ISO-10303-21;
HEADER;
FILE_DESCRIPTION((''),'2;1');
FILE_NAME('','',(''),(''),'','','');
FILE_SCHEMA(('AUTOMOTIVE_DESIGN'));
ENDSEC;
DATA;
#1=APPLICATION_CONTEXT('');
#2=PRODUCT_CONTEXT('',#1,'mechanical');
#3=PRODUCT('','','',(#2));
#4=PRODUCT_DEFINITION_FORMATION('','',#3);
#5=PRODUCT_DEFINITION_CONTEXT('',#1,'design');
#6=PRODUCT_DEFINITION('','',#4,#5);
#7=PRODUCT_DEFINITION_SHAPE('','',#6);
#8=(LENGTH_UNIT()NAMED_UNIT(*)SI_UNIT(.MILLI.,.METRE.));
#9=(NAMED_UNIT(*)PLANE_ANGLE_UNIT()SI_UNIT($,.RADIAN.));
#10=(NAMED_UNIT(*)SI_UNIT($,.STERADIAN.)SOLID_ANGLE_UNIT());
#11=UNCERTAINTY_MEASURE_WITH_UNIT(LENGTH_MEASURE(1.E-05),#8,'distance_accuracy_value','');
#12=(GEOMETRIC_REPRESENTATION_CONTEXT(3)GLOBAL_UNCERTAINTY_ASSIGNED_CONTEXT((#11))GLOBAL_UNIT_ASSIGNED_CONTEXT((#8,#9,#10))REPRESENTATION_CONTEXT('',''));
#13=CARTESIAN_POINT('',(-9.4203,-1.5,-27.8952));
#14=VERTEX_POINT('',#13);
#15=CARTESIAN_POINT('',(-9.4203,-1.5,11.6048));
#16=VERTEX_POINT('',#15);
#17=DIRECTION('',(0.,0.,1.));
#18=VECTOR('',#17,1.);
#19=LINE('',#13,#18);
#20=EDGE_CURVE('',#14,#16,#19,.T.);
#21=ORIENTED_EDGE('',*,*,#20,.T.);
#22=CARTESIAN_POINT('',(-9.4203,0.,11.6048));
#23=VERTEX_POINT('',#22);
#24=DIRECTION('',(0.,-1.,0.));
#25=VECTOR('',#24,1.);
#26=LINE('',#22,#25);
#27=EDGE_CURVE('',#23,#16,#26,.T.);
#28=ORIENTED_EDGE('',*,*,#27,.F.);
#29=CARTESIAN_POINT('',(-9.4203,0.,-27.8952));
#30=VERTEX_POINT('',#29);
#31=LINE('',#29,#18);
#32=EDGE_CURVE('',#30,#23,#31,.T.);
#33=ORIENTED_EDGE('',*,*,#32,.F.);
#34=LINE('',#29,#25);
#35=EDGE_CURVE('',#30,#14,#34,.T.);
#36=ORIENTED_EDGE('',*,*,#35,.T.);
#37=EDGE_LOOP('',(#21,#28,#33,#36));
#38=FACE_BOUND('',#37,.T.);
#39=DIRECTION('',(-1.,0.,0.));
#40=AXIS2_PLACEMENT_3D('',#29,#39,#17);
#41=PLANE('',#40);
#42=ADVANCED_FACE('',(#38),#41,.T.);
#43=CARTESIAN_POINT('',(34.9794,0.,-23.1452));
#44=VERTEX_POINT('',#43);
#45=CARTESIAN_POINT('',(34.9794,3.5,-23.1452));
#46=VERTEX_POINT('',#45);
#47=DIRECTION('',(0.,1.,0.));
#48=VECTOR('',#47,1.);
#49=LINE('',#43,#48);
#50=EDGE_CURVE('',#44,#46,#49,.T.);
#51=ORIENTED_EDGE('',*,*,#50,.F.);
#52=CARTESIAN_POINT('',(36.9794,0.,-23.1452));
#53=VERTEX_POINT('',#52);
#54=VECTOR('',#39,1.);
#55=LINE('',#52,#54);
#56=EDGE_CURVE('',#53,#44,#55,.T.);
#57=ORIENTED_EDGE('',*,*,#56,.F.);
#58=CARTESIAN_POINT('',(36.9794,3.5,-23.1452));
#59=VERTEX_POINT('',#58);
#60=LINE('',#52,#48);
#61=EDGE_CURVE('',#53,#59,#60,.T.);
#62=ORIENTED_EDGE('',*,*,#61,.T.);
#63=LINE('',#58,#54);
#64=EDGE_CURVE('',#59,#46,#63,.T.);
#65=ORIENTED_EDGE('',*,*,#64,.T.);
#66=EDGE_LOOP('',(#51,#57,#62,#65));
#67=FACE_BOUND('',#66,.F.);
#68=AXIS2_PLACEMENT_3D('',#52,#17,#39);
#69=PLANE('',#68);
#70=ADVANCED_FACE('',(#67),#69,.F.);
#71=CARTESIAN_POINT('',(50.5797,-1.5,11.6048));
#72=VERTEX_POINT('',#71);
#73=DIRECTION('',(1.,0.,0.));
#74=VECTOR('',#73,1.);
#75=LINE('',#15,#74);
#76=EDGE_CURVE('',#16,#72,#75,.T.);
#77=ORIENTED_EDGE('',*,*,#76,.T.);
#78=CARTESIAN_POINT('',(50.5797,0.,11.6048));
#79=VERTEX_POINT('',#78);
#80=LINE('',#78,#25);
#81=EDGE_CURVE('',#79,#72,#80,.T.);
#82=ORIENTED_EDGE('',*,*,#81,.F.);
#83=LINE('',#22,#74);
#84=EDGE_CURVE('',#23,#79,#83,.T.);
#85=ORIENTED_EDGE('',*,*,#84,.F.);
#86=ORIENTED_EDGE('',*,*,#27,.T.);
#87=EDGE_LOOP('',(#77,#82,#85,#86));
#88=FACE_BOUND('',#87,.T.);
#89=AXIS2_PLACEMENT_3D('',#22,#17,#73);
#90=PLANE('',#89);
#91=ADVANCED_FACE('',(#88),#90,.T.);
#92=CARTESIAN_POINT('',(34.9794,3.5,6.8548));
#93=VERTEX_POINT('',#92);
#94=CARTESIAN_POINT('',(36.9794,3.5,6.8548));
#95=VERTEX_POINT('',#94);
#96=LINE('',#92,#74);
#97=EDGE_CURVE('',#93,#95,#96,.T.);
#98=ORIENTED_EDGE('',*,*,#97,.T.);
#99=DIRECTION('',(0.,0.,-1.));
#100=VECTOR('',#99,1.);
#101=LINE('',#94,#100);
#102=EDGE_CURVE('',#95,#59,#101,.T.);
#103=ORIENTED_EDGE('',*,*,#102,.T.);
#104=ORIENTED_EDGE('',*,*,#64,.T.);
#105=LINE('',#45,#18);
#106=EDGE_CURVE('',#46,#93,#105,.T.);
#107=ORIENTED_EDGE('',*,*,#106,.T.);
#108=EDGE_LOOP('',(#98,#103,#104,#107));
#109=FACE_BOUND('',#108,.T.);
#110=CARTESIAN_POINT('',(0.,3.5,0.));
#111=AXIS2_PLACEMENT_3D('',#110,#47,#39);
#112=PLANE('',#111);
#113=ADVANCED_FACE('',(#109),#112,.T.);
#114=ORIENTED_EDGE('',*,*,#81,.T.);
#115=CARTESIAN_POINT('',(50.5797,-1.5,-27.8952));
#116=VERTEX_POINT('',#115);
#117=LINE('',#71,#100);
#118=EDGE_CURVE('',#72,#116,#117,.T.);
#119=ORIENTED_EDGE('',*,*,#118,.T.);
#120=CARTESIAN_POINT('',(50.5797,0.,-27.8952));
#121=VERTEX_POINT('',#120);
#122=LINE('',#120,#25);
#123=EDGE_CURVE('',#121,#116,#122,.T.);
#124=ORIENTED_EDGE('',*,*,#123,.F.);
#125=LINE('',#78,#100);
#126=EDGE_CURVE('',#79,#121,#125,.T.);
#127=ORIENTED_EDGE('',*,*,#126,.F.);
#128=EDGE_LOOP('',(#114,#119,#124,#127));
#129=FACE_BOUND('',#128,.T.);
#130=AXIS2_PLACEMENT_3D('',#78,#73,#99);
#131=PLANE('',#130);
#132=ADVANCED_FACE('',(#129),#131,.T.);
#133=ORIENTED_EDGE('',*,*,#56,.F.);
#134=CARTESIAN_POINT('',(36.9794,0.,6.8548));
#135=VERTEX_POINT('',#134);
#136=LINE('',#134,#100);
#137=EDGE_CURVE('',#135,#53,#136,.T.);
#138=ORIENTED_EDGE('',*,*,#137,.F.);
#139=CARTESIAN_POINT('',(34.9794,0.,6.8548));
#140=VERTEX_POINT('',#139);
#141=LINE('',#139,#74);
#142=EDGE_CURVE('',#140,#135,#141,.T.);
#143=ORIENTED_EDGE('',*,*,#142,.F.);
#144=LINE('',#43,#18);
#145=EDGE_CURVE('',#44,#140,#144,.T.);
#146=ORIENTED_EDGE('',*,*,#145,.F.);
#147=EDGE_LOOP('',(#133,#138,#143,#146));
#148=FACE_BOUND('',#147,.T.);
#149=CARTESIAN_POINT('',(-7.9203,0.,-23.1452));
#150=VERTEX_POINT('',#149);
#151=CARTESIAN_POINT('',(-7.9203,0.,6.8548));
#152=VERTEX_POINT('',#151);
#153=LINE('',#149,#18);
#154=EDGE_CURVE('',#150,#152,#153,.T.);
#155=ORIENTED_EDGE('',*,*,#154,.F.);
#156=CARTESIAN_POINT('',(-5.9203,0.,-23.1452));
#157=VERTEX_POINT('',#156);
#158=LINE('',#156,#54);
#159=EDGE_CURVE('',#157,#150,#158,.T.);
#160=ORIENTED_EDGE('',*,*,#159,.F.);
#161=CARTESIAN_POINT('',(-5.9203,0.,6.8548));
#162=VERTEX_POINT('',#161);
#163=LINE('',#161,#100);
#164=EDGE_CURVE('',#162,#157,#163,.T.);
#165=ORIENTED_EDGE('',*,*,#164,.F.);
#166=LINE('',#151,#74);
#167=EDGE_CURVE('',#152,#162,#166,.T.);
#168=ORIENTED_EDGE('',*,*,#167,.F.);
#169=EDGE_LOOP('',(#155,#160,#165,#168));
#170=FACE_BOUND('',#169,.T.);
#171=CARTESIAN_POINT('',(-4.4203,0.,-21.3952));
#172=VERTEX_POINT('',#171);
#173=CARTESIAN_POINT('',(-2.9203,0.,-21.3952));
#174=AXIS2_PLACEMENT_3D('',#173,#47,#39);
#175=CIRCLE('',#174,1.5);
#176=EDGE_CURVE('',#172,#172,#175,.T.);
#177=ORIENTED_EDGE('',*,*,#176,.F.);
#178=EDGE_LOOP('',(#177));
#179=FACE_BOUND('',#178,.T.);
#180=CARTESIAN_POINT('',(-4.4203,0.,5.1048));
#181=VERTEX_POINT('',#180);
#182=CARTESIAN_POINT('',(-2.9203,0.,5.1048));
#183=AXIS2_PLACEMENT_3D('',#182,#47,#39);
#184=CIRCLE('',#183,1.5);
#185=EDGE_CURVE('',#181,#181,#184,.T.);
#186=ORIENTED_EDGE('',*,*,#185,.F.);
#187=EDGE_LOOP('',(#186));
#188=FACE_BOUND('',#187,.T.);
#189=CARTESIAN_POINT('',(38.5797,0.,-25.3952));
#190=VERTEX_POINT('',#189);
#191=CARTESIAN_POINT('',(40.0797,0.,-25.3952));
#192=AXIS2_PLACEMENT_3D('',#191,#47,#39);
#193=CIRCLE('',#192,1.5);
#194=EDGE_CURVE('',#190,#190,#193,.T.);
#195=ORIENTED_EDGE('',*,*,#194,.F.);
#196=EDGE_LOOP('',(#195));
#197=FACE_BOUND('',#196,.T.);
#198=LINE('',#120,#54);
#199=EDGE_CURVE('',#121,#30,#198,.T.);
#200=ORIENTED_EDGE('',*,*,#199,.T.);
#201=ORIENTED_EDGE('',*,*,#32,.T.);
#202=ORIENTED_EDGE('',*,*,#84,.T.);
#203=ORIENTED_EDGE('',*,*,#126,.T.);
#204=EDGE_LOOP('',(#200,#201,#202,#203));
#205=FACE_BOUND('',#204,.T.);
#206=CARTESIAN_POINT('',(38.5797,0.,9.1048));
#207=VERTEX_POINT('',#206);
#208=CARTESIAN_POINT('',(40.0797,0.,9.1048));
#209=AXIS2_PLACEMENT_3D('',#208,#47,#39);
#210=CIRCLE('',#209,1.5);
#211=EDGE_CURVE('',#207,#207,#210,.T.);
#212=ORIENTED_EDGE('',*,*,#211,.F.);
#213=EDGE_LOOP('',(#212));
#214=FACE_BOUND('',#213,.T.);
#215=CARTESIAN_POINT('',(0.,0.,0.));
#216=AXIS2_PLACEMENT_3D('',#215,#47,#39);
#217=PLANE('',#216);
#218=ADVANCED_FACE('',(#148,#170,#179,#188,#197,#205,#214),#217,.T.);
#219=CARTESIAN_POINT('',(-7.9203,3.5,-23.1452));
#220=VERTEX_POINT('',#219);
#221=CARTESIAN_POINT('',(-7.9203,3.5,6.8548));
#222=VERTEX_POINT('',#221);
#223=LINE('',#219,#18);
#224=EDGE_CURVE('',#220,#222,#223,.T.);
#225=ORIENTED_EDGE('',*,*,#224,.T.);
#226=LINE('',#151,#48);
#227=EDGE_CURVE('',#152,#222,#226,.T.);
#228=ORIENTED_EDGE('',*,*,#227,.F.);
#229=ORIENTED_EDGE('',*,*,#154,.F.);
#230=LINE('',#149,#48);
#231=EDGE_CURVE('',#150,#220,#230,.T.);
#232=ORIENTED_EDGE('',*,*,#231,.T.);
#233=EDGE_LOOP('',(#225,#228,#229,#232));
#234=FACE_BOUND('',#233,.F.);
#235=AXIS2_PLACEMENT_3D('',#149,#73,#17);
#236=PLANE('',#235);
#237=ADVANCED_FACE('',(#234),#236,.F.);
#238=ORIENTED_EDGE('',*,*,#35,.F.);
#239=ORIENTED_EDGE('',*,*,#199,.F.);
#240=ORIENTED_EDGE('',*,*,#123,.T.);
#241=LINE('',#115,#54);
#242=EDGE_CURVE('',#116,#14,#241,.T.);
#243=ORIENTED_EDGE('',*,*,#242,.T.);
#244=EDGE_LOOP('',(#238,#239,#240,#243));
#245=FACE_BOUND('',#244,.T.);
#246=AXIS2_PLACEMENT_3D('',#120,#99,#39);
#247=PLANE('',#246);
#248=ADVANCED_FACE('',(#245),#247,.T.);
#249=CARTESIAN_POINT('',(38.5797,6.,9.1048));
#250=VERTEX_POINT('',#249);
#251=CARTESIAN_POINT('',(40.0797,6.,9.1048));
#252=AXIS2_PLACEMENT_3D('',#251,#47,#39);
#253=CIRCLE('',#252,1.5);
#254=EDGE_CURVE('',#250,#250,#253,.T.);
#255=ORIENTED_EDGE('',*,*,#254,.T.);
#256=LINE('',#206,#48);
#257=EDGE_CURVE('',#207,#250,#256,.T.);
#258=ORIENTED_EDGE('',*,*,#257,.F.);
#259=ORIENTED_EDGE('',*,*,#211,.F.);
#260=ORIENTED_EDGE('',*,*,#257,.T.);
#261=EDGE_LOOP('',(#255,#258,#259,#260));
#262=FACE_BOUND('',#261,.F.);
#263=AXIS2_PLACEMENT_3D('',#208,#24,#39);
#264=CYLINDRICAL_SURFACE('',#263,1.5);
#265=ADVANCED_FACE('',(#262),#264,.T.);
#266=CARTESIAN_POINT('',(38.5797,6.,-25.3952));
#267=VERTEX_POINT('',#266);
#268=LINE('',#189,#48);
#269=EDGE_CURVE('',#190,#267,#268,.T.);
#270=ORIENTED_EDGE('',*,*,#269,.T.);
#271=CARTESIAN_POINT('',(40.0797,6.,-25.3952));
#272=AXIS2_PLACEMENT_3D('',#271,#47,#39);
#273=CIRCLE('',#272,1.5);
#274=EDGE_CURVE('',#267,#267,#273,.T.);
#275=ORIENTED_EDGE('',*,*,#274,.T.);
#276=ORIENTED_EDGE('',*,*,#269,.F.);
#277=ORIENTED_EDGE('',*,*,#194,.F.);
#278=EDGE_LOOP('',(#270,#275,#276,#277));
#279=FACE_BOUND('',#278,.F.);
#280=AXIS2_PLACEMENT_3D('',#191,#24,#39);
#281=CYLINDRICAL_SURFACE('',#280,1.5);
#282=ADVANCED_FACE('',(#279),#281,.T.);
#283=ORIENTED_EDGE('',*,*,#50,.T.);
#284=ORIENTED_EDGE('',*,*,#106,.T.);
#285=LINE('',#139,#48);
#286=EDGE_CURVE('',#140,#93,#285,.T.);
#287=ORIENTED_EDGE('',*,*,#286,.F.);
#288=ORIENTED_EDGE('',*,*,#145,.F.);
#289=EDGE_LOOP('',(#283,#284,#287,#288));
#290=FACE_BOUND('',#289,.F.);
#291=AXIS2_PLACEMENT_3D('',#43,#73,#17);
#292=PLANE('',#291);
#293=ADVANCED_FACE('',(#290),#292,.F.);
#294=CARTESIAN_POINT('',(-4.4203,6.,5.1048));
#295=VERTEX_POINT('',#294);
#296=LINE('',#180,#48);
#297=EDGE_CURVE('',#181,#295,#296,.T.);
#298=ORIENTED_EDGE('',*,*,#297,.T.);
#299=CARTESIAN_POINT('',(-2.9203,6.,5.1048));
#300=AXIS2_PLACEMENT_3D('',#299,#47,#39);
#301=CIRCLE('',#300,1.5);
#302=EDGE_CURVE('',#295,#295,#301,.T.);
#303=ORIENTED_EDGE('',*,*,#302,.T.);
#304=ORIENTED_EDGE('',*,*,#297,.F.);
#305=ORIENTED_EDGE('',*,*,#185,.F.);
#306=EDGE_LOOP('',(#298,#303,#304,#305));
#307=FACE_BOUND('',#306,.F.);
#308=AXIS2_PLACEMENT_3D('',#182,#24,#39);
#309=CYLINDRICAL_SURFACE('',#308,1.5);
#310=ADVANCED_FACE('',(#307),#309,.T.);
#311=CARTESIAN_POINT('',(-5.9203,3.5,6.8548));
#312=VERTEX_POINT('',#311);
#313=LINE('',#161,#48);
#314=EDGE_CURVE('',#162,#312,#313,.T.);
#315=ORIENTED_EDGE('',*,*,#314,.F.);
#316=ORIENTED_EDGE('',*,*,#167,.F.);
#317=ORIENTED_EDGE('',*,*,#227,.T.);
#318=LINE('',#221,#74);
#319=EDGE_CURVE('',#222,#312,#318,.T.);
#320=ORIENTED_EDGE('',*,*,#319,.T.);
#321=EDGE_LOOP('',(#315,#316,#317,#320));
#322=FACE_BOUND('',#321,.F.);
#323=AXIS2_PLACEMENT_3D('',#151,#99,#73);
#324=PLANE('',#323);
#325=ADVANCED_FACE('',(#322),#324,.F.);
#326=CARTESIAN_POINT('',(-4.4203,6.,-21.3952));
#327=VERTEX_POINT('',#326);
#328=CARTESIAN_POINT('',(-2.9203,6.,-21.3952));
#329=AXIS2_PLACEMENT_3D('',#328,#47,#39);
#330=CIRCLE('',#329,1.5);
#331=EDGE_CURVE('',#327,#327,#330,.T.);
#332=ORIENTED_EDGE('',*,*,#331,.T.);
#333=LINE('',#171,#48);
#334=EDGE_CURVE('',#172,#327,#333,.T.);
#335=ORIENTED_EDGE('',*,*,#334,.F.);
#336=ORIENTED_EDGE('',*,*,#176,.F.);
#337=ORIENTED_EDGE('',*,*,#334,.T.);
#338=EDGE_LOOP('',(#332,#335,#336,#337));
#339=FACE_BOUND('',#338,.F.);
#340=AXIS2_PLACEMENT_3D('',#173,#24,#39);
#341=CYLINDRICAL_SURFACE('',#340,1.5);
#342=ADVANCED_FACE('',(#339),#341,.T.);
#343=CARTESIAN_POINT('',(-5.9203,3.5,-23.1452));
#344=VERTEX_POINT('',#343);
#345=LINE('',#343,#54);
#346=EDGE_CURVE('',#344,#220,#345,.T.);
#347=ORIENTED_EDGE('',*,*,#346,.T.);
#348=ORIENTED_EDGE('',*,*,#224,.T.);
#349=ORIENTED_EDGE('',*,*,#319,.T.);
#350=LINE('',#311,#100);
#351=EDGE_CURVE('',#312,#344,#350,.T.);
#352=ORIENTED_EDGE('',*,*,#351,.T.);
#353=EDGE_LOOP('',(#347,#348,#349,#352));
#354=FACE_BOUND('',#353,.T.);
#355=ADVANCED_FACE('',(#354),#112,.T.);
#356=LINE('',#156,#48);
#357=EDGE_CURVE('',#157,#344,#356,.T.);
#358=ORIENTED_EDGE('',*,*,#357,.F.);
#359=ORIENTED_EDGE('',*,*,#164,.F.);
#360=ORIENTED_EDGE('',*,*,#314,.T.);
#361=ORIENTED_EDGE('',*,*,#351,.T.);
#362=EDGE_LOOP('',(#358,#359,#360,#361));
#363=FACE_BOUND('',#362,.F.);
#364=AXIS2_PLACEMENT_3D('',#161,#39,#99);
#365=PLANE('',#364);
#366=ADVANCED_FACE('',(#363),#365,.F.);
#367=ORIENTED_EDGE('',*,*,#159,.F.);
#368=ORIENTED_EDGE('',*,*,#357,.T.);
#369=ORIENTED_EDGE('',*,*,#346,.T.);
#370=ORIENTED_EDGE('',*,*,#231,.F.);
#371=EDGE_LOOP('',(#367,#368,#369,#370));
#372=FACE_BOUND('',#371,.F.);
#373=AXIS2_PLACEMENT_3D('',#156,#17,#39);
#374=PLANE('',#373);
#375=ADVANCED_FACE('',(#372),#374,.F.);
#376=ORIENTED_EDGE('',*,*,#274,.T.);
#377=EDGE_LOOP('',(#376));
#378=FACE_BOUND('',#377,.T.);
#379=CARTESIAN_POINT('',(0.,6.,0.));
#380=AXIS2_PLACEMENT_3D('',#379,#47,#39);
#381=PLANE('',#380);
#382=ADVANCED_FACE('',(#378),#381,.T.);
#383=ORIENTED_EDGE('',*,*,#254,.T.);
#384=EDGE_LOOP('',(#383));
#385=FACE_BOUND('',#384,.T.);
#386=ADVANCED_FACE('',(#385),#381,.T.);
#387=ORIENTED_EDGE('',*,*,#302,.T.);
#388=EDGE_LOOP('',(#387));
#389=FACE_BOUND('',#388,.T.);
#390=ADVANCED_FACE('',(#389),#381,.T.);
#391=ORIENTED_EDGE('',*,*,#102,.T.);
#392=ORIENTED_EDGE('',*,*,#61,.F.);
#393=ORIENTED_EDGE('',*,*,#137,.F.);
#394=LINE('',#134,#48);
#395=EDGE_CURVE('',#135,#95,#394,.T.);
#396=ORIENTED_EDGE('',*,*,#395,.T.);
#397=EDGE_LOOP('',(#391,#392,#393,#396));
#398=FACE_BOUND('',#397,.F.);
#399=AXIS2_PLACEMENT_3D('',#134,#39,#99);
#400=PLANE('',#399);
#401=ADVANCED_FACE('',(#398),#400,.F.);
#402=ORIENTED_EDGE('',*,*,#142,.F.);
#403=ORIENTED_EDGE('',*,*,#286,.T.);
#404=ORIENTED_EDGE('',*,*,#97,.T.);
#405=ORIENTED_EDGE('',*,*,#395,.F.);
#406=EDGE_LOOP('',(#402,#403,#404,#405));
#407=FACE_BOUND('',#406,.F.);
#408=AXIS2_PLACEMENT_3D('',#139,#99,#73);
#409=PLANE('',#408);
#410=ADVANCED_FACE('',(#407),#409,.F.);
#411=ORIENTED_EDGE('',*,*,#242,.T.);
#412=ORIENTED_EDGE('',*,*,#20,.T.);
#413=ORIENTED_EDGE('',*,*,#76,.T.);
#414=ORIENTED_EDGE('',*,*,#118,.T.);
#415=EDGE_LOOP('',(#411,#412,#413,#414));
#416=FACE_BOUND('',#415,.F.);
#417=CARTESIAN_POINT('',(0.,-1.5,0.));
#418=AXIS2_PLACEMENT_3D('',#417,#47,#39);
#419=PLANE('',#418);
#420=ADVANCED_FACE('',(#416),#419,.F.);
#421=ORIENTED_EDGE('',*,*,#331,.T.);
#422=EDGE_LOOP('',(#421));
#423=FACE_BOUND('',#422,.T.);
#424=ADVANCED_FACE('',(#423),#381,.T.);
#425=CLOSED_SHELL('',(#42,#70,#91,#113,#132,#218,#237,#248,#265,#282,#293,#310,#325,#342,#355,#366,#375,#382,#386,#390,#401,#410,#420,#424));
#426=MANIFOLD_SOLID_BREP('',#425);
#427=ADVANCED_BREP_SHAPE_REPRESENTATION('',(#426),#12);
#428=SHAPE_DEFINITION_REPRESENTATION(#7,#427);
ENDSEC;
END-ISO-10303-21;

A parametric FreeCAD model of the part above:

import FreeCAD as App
import Part
import Sketcher
Q = App.Units.Quantity


def add_polygon(sketch, points):
    """Adds a closed chain of lines whose ends are joined by coincident constraints."""
    first, n = sketch.GeometryCount, len(points)
    for a, b in zip(points, points[1:] + points[:1]):
        sketch.addGeometry(Part.LineSegment(App.Vector(*a, 0), App.Vector(*b, 0)), False)
    for i in range(n):
        sketch.addConstraint(Sketcher.Constraint("Coincident", first + i, 2, first + (i + 1) % n, 1))

doc = App.newDocument("Part")
params = doc.addObject("Spreadsheet::Sheet", "Params")
for row, (alias, value) in enumerate([
    ("sketch1_width", "60 mm"),
    ("sketch1_height", "39.5 mm"),
    ("pad1_length", "1.5 mm"),
    ("sketch2_diameter", "3 mm"),
    ("pad2_length", "6 mm"),
    ("sketch3_width", "2 mm"),
    ("sketch3_height", "30 mm"),
    ("pad3_length", "3.5 mm"),
], start=1):
    params.set(f"A{row}", alias)
    params.set(f"B{row}", "=" + value)
    params.setAlias(f"B{row}", alias)

body = doc.addObject("PartDesign::Body", "Body")

sketch1 = body.newObject("Sketcher::SketchObject", "Sketch")
sketch1.AttachmentSupport = (doc.getObject("XZ_Plane"), [""])
sketch1.MapMode = "FlatFace"
add_polygon(sketch1, [(-9.4203, -27.8952), (-9.4203, 11.6048), (50.5797, 11.6048), (50.5797, -27.8952)])
sketch1.addConstraint([
    Sketcher.Constraint("Vertical", 0),
    Sketcher.Constraint("Horizontal", 1),
    Sketcher.Constraint("Vertical", 2),
    Sketcher.Constraint("Horizontal", 3),
    Sketcher.Constraint("DistanceX", 1, 1, 1, 2, Q("60 mm")),
    Sketcher.Constraint("DistanceY", 0, 1, 0, 2, Q("39.5 mm")),
    Sketcher.Constraint("DistanceX", 0, 2, -1, 1, Q("9.4203 mm")),
    Sketcher.Constraint("DistanceY", -1, 1, 0, 2, Q("11.6048 mm")),
])
sketch1.setExpression("Constraints[8]", "Params.sketch1_width")
sketch1.setExpression("Constraints[9]", "Params.sketch1_height")
pad1 = body.newObject("PartDesign::Pad", "Pad")
pad1.Profile = sketch1
pad1.setExpression("Length", "Params.pad1_length")

sketch2 = body.newObject("Sketcher::SketchObject", "Sketch001")
sketch2.AttachmentSupport = (doc.getObject("XZ_Plane"), [""])
sketch2.MapMode = "FlatFace"
sketch2.addGeometry([
    Part.Circle(App.Vector(-2.9203, -21.3952, 0), App.Vector(0, 0, 1), 1.5),
    Part.Circle(App.Vector(-2.9203, 5.1048, 0), App.Vector(0, 0, 1), 1.5),
    Part.Circle(App.Vector(40.0797, -25.3952, 0), App.Vector(0, 0, 1), 1.5),
    Part.Circle(App.Vector(40.0797, 9.1048, 0), App.Vector(0, 0, 1), 1.5),
], False)
sketch2.addConstraint([
    Sketcher.Constraint("Equal", 0, 1),
    Sketcher.Constraint("Equal", 1, 2),
    Sketcher.Constraint("Equal", 2, 3),
    Sketcher.Constraint("Vertical", 0, 3, 1, 3),
    Sketcher.Constraint("Vertical", 2, 3, 3, 3),
    Sketcher.Constraint("Diameter", 0, Q("3 mm")),
    Sketcher.Constraint("DistanceX", 0, 3, 2, 3, Q("43 mm")),
    Sketcher.Constraint("DistanceY", 2, 3, 0, 3, Q("4 mm")),
    Sketcher.Constraint("DistanceY", 1, 3, 3, 3, Q("4 mm")),
    Sketcher.Constraint("DistanceY", 0, 3, 1, 3, Q("26.5 mm")),
    Sketcher.Constraint("DistanceX", 0, 3, -1, 1, Q("2.9203 mm")),
    Sketcher.Constraint("DistanceY", 0, 3, -1, 1, Q("21.3952 mm")),
])
sketch2.setExpression("Constraints[5]", "Params.sketch2_diameter")
pad2 = body.newObject("PartDesign::Pad", "Pad001")
pad2.Profile = sketch2
pad2.setExpression("Length", "Params.pad2_length")
pad2.Reversed = True

sketch3 = body.newObject("Sketcher::SketchObject", "Sketch002")
sketch3.AttachmentSupport = (doc.getObject("XZ_Plane"), [""])
sketch3.MapMode = "FlatFace"
add_polygon(sketch3, [(36.9794, 6.8548), (36.9794, -23.1452), (34.9794, -23.1452), (34.9794, 6.8548)])
add_polygon(sketch3, [(-7.9203, -23.1452), (-7.9203, 6.8548), (-5.9203, 6.8548), (-5.9203, -23.1452)])
sketch3.addConstraint([
    Sketcher.Constraint("Vertical", 0),
    Sketcher.Constraint("Horizontal", 1),
    Sketcher.Constraint("Vertical", 2),
    Sketcher.Constraint("Horizontal", 3),
    Sketcher.Constraint("Vertical", 4),
    Sketcher.Constraint("Horizontal", 5),
    Sketcher.Constraint("Vertical", 6),
    Sketcher.Constraint("Horizontal", 7),
    Sketcher.Constraint("Horizontal", 3, 2, 4, 2),
    Sketcher.Constraint("Horizontal", 1, 2, 6, 2),
    Sketcher.Constraint("Equal", 3, 5),
    Sketcher.Constraint("DistanceX", 1, 2, 1, 1, Q("2 mm")),
    Sketcher.Constraint("DistanceY", 0, 2, 0, 1, Q("30 mm")),
    Sketcher.Constraint("DistanceX", -1, 1, 0, 2, Q("36.9794 mm")),
    Sketcher.Constraint("DistanceY", 0, 2, -1, 1, Q("23.1452 mm")),
    Sketcher.Constraint("DistanceX", 4, 2, -1, 1, Q("7.9203 mm")),
])
sketch3.setExpression("Constraints[19]", "Params.sketch3_width")
sketch3.setExpression("Constraints[20]", "Params.sketch3_height")
pad3 = body.newObject("PartDesign::Pad", "Pad002")
pad3.Profile = sketch3
pad3.setExpression("Length", "Params.pad3_length")
pad3.Reversed = True

doc.recompute()
